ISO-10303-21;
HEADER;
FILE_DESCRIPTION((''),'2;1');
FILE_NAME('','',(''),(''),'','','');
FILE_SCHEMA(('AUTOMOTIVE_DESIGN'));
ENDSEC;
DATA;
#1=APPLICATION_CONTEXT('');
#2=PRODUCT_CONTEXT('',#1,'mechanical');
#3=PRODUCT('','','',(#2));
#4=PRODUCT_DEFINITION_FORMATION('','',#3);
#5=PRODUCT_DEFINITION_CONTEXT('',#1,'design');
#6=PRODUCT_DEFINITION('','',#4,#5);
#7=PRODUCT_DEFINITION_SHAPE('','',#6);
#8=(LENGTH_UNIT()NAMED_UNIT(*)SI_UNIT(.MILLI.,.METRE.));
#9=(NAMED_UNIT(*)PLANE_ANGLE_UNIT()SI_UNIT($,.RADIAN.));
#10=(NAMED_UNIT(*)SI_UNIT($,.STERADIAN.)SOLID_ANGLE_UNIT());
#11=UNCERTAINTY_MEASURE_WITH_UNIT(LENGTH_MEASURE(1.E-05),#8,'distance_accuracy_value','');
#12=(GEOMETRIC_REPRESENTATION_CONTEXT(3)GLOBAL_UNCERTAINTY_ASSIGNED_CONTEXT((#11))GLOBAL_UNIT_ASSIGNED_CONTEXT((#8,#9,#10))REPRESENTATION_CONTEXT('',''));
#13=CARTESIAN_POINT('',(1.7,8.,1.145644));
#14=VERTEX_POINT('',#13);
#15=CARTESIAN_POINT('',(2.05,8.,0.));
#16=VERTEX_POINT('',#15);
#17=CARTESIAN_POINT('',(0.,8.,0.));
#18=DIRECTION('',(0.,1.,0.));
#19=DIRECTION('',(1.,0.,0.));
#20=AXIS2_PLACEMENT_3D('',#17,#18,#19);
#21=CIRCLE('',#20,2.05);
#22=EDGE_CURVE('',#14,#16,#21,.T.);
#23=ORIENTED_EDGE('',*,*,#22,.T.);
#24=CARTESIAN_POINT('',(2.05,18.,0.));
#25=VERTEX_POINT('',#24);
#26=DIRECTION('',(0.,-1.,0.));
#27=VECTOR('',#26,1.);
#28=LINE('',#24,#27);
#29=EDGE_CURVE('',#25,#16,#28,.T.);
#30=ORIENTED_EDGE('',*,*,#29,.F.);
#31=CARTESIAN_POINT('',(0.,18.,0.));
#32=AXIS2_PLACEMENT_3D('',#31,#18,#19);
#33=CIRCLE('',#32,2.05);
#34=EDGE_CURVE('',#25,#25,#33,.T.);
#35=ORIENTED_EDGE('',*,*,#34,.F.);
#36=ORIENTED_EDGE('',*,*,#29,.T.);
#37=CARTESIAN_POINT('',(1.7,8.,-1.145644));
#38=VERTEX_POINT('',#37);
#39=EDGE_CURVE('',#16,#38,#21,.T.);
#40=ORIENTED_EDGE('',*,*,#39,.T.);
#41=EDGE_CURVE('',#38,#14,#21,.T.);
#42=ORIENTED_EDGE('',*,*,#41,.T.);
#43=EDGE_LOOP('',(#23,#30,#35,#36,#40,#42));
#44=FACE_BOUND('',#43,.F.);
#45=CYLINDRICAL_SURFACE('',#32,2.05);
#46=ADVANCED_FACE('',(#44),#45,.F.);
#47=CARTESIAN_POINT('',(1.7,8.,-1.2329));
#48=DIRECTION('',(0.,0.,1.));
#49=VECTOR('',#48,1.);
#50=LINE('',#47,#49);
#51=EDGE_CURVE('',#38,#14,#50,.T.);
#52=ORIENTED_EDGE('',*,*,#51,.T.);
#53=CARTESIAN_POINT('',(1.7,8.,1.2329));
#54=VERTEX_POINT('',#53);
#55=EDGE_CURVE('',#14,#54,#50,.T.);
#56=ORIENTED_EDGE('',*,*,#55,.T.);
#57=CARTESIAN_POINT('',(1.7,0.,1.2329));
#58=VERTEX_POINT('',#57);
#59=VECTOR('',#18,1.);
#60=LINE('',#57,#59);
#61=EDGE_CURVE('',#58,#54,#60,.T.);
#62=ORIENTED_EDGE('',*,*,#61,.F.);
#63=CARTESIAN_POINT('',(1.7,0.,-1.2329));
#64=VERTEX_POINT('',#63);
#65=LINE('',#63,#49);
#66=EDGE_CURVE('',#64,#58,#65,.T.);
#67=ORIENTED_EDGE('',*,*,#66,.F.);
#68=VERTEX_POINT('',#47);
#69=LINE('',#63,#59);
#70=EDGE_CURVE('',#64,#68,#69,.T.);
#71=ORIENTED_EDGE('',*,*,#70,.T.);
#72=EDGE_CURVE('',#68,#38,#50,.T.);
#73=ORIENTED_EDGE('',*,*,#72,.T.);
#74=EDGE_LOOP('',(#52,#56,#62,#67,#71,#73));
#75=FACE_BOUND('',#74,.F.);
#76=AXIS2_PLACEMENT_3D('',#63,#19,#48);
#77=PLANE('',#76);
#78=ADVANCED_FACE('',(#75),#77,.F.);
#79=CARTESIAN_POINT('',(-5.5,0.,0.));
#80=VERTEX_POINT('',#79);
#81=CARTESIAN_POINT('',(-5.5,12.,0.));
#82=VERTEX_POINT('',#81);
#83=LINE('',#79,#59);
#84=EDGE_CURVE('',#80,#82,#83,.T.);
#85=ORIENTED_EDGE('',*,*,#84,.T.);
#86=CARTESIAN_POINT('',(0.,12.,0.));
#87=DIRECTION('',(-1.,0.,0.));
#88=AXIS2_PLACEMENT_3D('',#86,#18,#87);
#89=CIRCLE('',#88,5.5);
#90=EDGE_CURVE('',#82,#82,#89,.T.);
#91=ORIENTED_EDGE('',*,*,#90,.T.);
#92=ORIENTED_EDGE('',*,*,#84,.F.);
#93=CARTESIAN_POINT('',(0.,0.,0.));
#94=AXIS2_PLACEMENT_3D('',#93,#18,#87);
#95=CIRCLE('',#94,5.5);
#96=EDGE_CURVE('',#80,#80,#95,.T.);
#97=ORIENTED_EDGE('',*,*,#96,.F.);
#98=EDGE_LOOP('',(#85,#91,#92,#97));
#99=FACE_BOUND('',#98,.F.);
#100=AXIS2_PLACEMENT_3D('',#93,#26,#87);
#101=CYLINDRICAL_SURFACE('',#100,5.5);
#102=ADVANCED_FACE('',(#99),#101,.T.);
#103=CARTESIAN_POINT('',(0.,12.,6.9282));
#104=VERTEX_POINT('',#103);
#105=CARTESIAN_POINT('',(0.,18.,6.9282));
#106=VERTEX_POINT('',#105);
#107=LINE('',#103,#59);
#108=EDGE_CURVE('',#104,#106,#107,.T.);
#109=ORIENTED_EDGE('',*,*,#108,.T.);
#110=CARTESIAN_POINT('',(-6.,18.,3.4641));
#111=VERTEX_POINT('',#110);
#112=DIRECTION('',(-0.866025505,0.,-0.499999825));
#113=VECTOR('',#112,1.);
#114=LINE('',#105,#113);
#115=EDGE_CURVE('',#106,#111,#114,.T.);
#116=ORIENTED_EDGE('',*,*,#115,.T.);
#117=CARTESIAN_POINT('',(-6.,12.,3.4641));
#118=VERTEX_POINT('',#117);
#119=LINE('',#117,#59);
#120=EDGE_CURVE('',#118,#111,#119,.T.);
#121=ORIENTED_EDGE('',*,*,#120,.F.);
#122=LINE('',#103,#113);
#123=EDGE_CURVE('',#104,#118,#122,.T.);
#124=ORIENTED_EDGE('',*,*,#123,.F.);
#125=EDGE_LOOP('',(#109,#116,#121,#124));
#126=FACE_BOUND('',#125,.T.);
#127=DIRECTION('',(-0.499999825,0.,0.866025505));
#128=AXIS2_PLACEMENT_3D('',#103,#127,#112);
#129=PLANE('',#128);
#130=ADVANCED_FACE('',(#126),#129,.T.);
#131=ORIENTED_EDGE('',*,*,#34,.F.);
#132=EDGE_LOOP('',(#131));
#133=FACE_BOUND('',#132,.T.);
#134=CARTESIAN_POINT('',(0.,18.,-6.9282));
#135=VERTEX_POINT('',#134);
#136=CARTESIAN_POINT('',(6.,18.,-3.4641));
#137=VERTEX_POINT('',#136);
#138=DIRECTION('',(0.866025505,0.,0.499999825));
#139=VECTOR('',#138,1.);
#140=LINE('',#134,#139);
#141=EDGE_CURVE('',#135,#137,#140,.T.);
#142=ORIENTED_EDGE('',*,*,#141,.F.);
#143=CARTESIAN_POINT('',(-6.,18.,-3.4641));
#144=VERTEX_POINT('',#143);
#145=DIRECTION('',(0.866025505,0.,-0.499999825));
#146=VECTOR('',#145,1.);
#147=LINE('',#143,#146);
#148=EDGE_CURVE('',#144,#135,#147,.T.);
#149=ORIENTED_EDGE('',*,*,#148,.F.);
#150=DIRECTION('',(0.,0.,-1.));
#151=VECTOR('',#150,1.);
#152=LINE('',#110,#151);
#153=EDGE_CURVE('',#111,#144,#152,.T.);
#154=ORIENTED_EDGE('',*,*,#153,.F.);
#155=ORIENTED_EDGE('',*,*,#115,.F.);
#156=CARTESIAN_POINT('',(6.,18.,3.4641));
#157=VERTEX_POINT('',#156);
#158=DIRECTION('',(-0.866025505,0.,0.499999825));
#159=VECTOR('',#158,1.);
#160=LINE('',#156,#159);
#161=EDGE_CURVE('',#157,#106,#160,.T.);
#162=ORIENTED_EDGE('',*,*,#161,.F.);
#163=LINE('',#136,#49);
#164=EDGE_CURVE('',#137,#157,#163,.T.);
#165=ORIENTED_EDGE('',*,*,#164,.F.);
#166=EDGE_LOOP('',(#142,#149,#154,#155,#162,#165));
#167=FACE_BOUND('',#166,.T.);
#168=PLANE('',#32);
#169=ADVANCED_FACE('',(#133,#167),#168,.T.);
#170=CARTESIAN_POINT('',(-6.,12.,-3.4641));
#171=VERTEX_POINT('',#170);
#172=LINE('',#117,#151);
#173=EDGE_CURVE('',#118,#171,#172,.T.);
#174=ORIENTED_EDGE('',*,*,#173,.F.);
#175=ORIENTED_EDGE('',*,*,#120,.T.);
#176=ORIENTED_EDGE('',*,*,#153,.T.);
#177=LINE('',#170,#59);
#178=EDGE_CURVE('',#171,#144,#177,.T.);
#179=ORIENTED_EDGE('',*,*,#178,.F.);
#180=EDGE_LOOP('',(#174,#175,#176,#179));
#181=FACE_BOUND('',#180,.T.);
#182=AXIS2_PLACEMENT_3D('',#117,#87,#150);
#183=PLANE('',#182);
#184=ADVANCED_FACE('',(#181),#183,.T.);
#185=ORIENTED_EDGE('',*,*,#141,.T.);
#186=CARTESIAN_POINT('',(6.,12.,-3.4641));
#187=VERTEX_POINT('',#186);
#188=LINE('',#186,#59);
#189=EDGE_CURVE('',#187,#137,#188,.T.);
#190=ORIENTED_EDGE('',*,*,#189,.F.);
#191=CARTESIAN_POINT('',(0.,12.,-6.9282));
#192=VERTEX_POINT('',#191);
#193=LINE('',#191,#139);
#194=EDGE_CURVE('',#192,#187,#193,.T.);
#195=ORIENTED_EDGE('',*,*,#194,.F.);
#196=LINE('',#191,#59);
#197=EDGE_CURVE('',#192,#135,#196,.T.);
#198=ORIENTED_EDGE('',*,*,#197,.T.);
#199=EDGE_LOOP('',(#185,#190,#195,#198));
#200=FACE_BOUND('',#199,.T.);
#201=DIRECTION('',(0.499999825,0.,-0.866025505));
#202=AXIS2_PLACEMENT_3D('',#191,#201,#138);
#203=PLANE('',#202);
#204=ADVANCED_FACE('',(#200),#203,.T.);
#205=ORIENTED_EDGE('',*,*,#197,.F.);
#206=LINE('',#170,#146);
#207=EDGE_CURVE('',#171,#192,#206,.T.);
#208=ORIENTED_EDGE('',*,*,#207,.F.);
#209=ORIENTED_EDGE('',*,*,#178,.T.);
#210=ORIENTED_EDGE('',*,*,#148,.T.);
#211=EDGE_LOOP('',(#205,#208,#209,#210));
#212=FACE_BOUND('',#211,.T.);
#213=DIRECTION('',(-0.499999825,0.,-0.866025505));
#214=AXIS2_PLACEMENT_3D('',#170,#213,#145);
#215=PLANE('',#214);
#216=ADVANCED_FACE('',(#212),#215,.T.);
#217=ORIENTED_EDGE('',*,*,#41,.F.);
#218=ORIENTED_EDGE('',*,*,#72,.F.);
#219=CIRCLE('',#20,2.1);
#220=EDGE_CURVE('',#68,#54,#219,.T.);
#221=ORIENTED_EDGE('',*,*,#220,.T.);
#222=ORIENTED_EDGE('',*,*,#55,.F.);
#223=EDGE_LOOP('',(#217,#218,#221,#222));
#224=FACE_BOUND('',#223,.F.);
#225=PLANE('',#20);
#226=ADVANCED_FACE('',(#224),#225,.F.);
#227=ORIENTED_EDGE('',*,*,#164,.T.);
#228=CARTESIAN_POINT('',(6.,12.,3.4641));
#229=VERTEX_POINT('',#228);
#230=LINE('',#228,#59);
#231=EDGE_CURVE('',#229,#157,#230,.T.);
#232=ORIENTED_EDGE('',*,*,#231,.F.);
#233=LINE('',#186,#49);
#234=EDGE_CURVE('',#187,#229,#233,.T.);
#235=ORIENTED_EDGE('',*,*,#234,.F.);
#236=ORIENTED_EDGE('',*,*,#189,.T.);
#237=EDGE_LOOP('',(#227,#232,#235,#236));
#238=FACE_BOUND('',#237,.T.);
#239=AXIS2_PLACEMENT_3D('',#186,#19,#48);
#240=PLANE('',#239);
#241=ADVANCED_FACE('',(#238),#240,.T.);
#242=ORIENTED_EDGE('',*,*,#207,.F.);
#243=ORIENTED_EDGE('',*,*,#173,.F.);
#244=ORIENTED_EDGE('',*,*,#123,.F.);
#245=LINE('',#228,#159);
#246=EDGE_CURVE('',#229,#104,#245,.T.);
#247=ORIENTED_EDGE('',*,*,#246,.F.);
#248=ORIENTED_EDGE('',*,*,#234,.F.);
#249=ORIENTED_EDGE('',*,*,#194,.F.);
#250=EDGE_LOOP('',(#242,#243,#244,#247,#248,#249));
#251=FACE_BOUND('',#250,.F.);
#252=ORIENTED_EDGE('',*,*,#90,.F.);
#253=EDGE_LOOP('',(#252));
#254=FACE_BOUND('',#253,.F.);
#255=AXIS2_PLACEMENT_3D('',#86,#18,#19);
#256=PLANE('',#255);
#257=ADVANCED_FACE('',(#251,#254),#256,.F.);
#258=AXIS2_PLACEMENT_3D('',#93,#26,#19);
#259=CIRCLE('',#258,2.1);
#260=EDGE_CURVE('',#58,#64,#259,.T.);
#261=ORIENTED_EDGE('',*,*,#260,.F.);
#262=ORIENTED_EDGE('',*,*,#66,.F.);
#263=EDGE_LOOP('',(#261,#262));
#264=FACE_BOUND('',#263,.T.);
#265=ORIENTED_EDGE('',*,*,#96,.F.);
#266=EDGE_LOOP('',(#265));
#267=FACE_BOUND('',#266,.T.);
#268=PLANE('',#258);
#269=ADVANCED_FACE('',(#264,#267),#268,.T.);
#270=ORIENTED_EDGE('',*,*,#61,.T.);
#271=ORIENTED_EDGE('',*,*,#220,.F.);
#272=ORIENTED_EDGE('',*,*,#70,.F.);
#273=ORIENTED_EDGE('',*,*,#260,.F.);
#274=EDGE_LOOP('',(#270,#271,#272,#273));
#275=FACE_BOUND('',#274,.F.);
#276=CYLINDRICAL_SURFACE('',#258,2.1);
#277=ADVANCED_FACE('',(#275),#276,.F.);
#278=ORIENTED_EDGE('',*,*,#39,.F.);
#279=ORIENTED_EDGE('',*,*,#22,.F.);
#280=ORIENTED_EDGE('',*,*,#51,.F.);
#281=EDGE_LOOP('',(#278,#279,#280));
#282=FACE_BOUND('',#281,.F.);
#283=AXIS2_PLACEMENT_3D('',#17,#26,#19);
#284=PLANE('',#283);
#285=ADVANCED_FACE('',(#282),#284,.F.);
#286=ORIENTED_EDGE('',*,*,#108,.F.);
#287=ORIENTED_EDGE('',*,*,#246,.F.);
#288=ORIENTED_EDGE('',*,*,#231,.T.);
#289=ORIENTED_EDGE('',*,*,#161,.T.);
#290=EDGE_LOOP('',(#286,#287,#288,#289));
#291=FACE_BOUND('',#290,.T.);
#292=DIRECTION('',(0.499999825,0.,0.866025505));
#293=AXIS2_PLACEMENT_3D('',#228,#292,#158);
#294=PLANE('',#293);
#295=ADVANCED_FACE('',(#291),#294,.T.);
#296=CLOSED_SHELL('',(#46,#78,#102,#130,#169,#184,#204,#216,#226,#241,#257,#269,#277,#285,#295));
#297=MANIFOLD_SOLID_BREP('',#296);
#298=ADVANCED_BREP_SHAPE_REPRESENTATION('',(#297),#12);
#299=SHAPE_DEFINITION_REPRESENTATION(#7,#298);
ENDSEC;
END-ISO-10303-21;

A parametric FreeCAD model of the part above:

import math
import FreeCAD as App
import Part
import Sketcher
Q = App.Units.Quantity

doc = App.newDocument("Part")
body = doc.addObject("PartDesign::Body", "Body")

# Sketch on XZ plane
sketch1 = body.newObject("Sketcher::SketchObject", "Sketch")
sketch1.AttachmentSupport = (doc.getObject("XZ_Plane"), [""])
sketch1.MapMode = "FlatFace"
sketch1.addGeometry(Part.Circle(App.Vector(0, 0, 0), App.Vector(0, 0, 1), 6), False)
sketch1.addConstraint([
    Sketcher.Constraint("Coincident", 0, 3, -1, 1),
    Sketcher.Constraint("Diameter", 0, 11.0),
])
pad1 = body.newObject("PartDesign::Pad", "Pad")
pad1.Profile = sketch1
pad1.Length = 12
pad1.Reversed = True

# Sketch on XZ plane
sketch2 = body.newObject("Sketcher::SketchObject", "Sketch001")
sketch2.AttachmentSupport = (doc.getObject("XZ_Plane"), [""])
sketch2.MapMode = "FlatFace"
sketch2.AttachmentOffset = App.Placement(App.Vector(0, 0, -12), App.Rotation())
sketch2.addGeometry([
    Part.LineSegment(App.Vector(0, 7, 0), App.Vector(6, 3, 0)),  # 0
    Part.LineSegment(App.Vector(6, 3, 0), App.Vector(6, -3, 0)),  # 1
    Part.LineSegment(App.Vector(6, -3, 0), App.Vector(0, -7, 0)),  # 2
    Part.LineSegment(App.Vector(0, -7, 0), App.Vector(-6, -3, 0)),  # 3
    Part.LineSegment(App.Vector(-6, -3, 0), App.Vector(-6, 3, 0)),  # 4
    Part.LineSegment(App.Vector(-6, 3, 0), App.Vector(0, 7, 0)),  # 5
], False)
sketch2.addConstraint([
    Sketcher.Constraint("Coincident", 0, 2, 1, 1),
    Sketcher.Constraint("Coincident", 1, 2, 2, 1),
    Sketcher.Constraint("Coincident", 2, 2, 3, 1),
    Sketcher.Constraint("Coincident", 3, 2, 4, 1),
    Sketcher.Constraint("Coincident", 4, 2, 5, 1),
    Sketcher.Constraint("Coincident", 5, 2, 0, 1),
    Sketcher.Constraint("Vertical", 1),
    Sketcher.Constraint("Vertical", 4),
    Sketcher.Constraint("Symmetric", 0, 2, 3, 2, -1, 1),
    Sketcher.Constraint("Symmetric", 2, 2, 5, 2, -1, 1),
    Sketcher.Constraint("PointOnObject", 2, 2, -2),
    Sketcher.Constraint("Parallel", 2, 5),
    Sketcher.Constraint("Horizontal", 1, 2, 3, 2),
    Sketcher.Constraint("DistanceX", 3, 2, 1, 2, 12.0),
    Sketcher.Constraint("Angle", 0, Q("-30 deg")),
    Sketcher.Constraint("DistanceY", 1, 2, 1, 1, 6.9282),
])
pad2 = body.newObject("PartDesign::Pad", "Pad001")
pad2.Profile = sketch2
pad2.Length = 6
pad2.Reversed = True

# Sketch on XZ plane
sketch3 = body.newObject("Sketcher::SketchObject", "Sketch002")
sketch3.AttachmentSupport = (doc.getObject("XZ_Plane"), [""])
sketch3.MapMode = "FlatFace"
sketch3.addGeometry(Part.Circle(App.Vector(0, 0, 0), App.Vector(0, 0, 1), 2.1), False)
sketch3.addConstraint([
    Sketcher.Constraint("Coincident", 0, 3, -1, 1),
    Sketcher.Constraint("Diameter", 0, 4.2),
])
pocket1 = body.newObject("PartDesign::Pocket", "Pocket")
pocket1.Profile = sketch3
pocket1.Length = 18

# Sketch on XZ plane
sketch4 = body.newObject("Sketcher::SketchObject", "Sketch003")
sketch4.AttachmentSupport = (doc.getObject("XZ_Plane"), [""])
sketch4.MapMode = "FlatFace"
sketch4.addGeometry([
    Part.ArcOfCircle(Part.Circle(App.Vector(0, 0, 0), App.Vector(0, 0, 1), 2.1), math.radians(-36), math.radians(36)),
    Part.LineSegment(App.Vector(1.7, -1.2, 0), App.Vector(1.7, 1.2, 0)),
], False)
sketch4.addConstraint([
    Sketcher.Constraint("Coincident", 0, 1, 1, 1),
    Sketcher.Constraint("Coincident", 1, 2, 0, 2),
    Sketcher.Constraint("Vertical", 1),
    Sketcher.Constraint("Coincident", 0, 3, -1, 1),
    Sketcher.Constraint("DistanceX", -1, 1, 0, 1, 1.7),
    Sketcher.Constraint("Radius", 0, 2.1),
])
pad3 = body.newObject("PartDesign::Pad", "Pad002")
pad3.Profile = sketch4
pad3.Length = 8
pad3.Reversed = True

# Sketch on XZ plane
sketch5 = body.newObject("Sketcher::SketchObject", "Sketch004")
sketch5.AttachmentSupport = (doc.getObject("XZ_Plane"), [""])
sketch5.MapMode = "FlatFace"
sketch5.AttachmentOffset = App.Placement(App.Vector(0, 0, -18), App.Rotation())
sketch5.addGeometry([
    Part.Circle(App.Vector(0, 0, 0), App.Vector(0, 0, 1), 2.1),
    Part.Circle(App.Vector(0, 0, 0), App.Vector(0, 0, 1), 2),
], False)
sketch5.addConstraint([
    Sketcher.Constraint("Coincident", 0, 3, -1, 1),
    Sketcher.Constraint("Coincident", 1, 3, -1, 1),
    Sketcher.Constraint("Diameter", 1, 4.1),
    Sketcher.Constraint("Diameter", 0, 4.2),
])
pad4 = body.newObject("PartDesign::Pad", "Pad003")
pad4.Profile = sketch5
pad4.Length = 10

doc.recompute()
